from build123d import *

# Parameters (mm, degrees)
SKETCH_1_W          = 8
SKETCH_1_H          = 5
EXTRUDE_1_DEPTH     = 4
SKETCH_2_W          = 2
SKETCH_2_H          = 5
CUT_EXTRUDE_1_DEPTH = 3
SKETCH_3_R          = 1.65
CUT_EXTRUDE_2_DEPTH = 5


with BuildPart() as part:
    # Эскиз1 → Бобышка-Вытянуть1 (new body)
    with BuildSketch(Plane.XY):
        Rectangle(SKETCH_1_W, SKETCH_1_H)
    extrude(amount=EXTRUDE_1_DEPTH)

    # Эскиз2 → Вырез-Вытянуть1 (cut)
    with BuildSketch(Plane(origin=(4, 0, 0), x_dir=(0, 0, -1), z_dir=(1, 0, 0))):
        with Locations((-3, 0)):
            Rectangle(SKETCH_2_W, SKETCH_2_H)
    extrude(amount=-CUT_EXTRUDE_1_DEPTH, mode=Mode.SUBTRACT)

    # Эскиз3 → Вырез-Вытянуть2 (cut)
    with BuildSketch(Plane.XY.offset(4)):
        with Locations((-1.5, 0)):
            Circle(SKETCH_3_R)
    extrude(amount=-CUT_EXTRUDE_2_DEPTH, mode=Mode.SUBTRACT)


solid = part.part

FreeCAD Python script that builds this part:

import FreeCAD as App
import Part
import Sketcher


def add_polygon(sketch, points):
    """Adds a closed chain of lines whose ends are joined by coincident constraints."""
    first, n = sketch.GeometryCount, len(points)
    for a, b in zip(points, points[1:] + points[:1]):
        sketch.addGeometry(Part.LineSegment(App.Vector(*a, 0), App.Vector(*b, 0)), False)
    for i in range(n):
        sketch.addConstraint(Sketcher.Constraint("Coincident", first + i, 2, first + (i + 1) % n, 1))

doc = App.newDocument("Part")
body = doc.addObject("PartDesign::Body", "Body")

sketch1 = body.newObject("Sketcher::SketchObject", "Sketch")
sketch1.AttachmentSupport = (doc.getObject("XY_Plane"), [""])
sketch1.MapMode = "FlatFace"
add_polygon(sketch1, [(-4, 2), (-4, -2), (4, -2), (4, 2)])
sketch1.addConstraint([
    Sketcher.Constraint("Vertical", 0),
    Sketcher.Constraint("Horizontal", 1),
    Sketcher.Constraint("Vertical", 2),
    Sketcher.Constraint("Horizontal", 3),
    Sketcher.Constraint("Symmetric", 0, 2, 2, 2, -1, 1),
    Sketcher.Constraint("DistanceX", 1, 1, 1, 2, 8.0),
    Sketcher.Constraint("DistanceY", 0, 2, 0, 1, 5.0),
])
pad1 = body.newObject("PartDesign::Pad", "Pad")
pad1.Profile = sketch1
pad1.Length = 4

sketch2 = body.newObject("Sketcher::SketchObject", "Sketch001")
sketch2.AttachmentSupport = (doc.getObject("YZ_Plane"), [""])
sketch2.MapMode = "FlatFace"
sketch2.AttachmentOffset = App.Placement(App.Vector(0, 0, 4), App.Rotation())
add_polygon(sketch2, [(2.5, 4), (-2.5, 4), (-2.5, 2), (2.5, 2)])
sketch2.addConstraint([
    Sketcher.Constraint("Horizontal", 0),
    Sketcher.Constraint("Vertical", 1),
    Sketcher.Constraint("Horizontal", 2),
    Sketcher.Constraint("Vertical", 3),
    Sketcher.Constraint("DistanceX", 0, 2, 0, 1, 5.0),
    Sketcher.Constraint("DistanceY", 1, 2, 1, 1, 2.0),
    Sketcher.Constraint("DistanceY", -1, 1, 0, 2, 4.0),
    Sketcher.Constraint("DistanceX", 0, 2, -1, 1, 2.5),
])
pocket1 = body.newObject("PartDesign::Pocket", "Pocket")
pocket1.Profile = sketch2
pocket1.Length = 3

sketch3 = body.newObject("Sketcher::SketchObject", "Sketch002")
sketch3.AttachmentSupport = (doc.getObject("XY_Plane"), [""])
sketch3.MapMode = "FlatFace"
sketch3.AttachmentOffset = App.Placement(App.Vector(0, 0, 4), App.Rotation())
sketch3.addGeometry(Part.Circle(App.Vector(-1.5, 0, 0), App.Vector(0, 0, 1), 1.6), False)
sketch3.addConstraint([
    Sketcher.Constraint("PointOnObject", 0, 3, -1),
    Sketcher.Constraint("Diameter", 0, 3.3),
    Sketcher.Constraint("DistanceX", 0, 3, -1, 1, 1.5),
])
pocket2 = body.newObject("PartDesign::Pocket", "Pocket001")
pocket2.Profile = sketch3
pocket2.Length = 5

doc.recompute()
